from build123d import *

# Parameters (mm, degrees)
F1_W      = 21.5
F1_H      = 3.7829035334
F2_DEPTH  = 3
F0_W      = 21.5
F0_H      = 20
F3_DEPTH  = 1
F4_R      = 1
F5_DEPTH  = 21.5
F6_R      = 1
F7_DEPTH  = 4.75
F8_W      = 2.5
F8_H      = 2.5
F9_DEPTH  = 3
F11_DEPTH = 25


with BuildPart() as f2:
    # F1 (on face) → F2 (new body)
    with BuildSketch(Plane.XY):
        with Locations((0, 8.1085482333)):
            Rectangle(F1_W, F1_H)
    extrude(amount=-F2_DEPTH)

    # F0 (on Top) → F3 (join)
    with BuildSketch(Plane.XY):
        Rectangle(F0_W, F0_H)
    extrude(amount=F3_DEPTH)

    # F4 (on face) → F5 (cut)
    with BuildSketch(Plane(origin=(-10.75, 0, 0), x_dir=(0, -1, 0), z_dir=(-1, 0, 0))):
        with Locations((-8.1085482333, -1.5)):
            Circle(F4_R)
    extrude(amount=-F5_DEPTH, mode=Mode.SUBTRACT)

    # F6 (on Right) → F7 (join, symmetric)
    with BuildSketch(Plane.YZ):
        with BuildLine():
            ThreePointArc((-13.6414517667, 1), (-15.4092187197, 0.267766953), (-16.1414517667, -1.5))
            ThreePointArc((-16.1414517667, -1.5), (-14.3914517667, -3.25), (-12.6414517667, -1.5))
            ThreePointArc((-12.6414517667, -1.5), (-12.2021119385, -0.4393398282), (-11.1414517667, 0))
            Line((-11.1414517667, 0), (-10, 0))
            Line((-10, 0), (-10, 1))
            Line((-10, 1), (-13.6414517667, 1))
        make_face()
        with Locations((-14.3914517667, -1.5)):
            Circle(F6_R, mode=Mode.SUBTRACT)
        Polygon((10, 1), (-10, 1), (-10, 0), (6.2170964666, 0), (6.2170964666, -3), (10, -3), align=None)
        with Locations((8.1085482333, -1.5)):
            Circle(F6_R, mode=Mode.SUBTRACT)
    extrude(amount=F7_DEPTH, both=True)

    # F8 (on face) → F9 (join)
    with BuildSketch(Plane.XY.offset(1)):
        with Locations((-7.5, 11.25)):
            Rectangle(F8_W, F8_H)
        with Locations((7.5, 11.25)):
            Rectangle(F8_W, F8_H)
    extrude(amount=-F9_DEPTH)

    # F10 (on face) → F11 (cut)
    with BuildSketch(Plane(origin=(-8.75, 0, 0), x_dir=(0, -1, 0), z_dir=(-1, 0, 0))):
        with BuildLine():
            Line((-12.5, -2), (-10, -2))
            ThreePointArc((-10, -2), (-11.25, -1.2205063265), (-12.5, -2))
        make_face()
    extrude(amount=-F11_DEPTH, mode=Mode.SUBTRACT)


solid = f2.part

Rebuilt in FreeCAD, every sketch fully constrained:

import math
import FreeCAD as App
import Part
import Sketcher
from FreeCAD import Vector


def add_polygon(sketch, points):
    """Adds a closed chain of lines whose ends are joined by coincident constraints."""
    first, n = sketch.GeometryCount, len(points)
    for a, b in zip(points, points[1:] + points[:1]):
        sketch.addGeometry(Part.LineSegment(App.Vector(*a, 0), App.Vector(*b, 0)), False)
    for i in range(n):
        sketch.addConstraint(Sketcher.Constraint("Coincident", first + i, 2, first + (i + 1) % n, 1))

doc = App.newDocument("Part")
body = doc.addObject("PartDesign::Body", "Body")

# Sketch on XY plane
sketch1 = doc.addObject("Sketcher::SketchObject", "Sketch")
body.addObject(sketch1)
sketch1.AttachmentSupport = (doc.XY_Plane, [""])
sketch1.MapMode = "FlatFace"
add_polygon(sketch1, [(-10.8, 10), (-10.8, 6.2), (10.8, 6.2), (10.8, 10)])  # lines 0-3
sketch1.addConstraint([
    Sketcher.Constraint("Vertical", 0),
    Sketcher.Constraint("Horizontal", 1),
    Sketcher.Constraint("Vertical", 2),
    Sketcher.Constraint("Horizontal", 3),
    Sketcher.Constraint("DistanceX", 1, 1, 1, 2, 21.5),
    Sketcher.Constraint("DistanceY", -1, 1, 2, 2, 10.0),
    Sketcher.Constraint("DistanceX", 0, 2, -1, 1, 10.75),
    Sketcher.Constraint("DistanceY", 0, 2, 0, 1, 3.782904),
])
pad1 = doc.addObject("PartDesign::Pad", "Pad")
body.addObject(pad1)
pad1.Profile = sketch1
pad1.Length = 3
pad1.Reversed = True

# Sketch on XY plane
sketch2 = doc.addObject("Sketcher::SketchObject", "Sketch001")
body.addObject(sketch2)
sketch2.AttachmentSupport = (doc.XY_Plane, [""])
sketch2.MapMode = "FlatFace"
add_polygon(sketch2, [(-11, 10), (-11, -10), (11, -10), (11, 10)])  # lines 0-3
sketch2.addConstraint([
    Sketcher.Constraint("Vertical", 0),
    Sketcher.Constraint("Horizontal", 1),
    Sketcher.Constraint("Vertical", 2),
    Sketcher.Constraint("Horizontal", 3),
    Sketcher.Constraint("Symmetric", 0, 2, 2, 2, -1, 1),
    Sketcher.Constraint("DistanceY", 0, 2, 0, 1, 20.0),
    Sketcher.Constraint("DistanceX", 1, 1, 1, 2, 21.5),
])
pad2 = doc.addObject("PartDesign::Pad", "Pad001")
body.addObject(pad2)
pad2.Profile = sketch2
pad2.Length = 1

# Sketch on YZ plane
sketch3 = doc.addObject("Sketcher::SketchObject", "Sketch002")
body.addObject(sketch3)
sketch3.AttachmentSupport = (doc.YZ_Plane, [""])
sketch3.MapMode = "FlatFace"
sketch3.AttachmentOffset = App.Placement(Vector(0, 0, -10.75), App.Rotation())
sketch3.addGeometry(Part.Circle(Vector(8.1, -1.5, 0), Vector(0, 0, 1), 1), False)
sketch3.addConstraint([
    Sketcher.Constraint("Diameter", 0, 2.0),
    Sketcher.Constraint("DistanceY", 0, 3, -1, 1, 1.5),
    Sketcher.Constraint("DistanceX", -1, 1, 0, 3, 8.108548),
])
pocket1 = doc.addObject("PartDesign::Pocket", "Pocket")
body.addObject(pocket1)
pocket1.Profile = sketch3
pocket1.Length = 21.5
pocket1.Reversed = True

# Sketch on YZ plane
sketch4 = doc.addObject("Sketcher::SketchObject", "Sketch003")
body.addObject(sketch4)
sketch4.AttachmentSupport = (doc.YZ_Plane, [""])
sketch4.MapMode = "FlatFace"
sketch4.addGeometry([
    Part.ArcOfCircle(Part.Circle(Vector(-13.6, -1.5, 0), Vector(0, 0, 1), 2.5), math.radians(90), math.radians(180)),  # 0
    Part.ArcOfCircle(Part.Circle(Vector(-14.4, -1.5, 0), Vector(0, 0, 1), 1.8), math.radians(180), math.radians(360)),  # 1
    Part.ArcOfCircle(Part.Circle(Vector(-11.1, -1.5, 0), Vector(0, 0, 1), 1.5), math.radians(90), math.radians(180)),  # 2
    Part.LineSegment(Vector(-11.1, 0, 0), Vector(6.2, 0, 0)),  # 3
    Part.LineSegment(Vector(6.2, 0, 0), Vector(6.2, -3, 0)),  # 4
    Part.LineSegment(Vector(6.2, -3, 0), Vector(10, -3, 0)),  # 5
    Part.LineSegment(Vector(10, -3, 0), Vector(10, 1, 0)),  # 6
    Part.LineSegment(Vector(10, 1, 0), Vector(-13.6, 1, 0)),  # 7
    Part.Circle(Vector(-14.4, -1.5, 0), Vector(0, 0, 1), 1),  # 8
    Part.Circle(Vector(8.1, -1.5, 0), Vector(0, 0, 1), 1),  # 9
], False)
sketch4.addConstraint([
    Sketcher.Constraint("Tangent", 0, 2, 1, 1),
    Sketcher.Constraint("Tangent", 1, 2, 2, 2),
    Sketcher.Constraint("Tangent", 2, 1, 3, 1),
    Sketcher.Constraint("Coincident", 3, 2, 4, 1),
    Sketcher.Constraint("Coincident", 4, 2, 5, 1),
    Sketcher.Constraint("Coincident", 5, 2, 6, 1),
    Sketcher.Constraint("Coincident", 6, 2, 7, 1),
    Sketcher.Constraint("Tangent", 7, 2, 0, 1),
    Sketcher.Constraint("Horizontal", 3),
    Sketcher.Constraint("Vertical", 4),
    Sketcher.Constraint("Horizontal", 5),
    Sketcher.Constraint("Vertical", 6),
    Sketcher.Constraint("Horizontal", 7),
    Sketcher.Constraint("Coincident", 8, 3, 1, 3),
    Sketcher.Constraint("Equal", 8, 9),
    Sketcher.Constraint("PointOnObject", 2, 1, -1),
    Sketcher.Constraint("Horizontal", 0, 3, 1, 3),
    Sketcher.Constraint("Horizontal", 1, 3, 2, 3),
    Sketcher.Constraint("Horizontal", 8, 3, 9, 3),
    Sketcher.Constraint("Diameter", 8, 2.0),
    Sketcher.Constraint("Radius", 0, 2.5),
    Sketcher.Constraint("Radius", 2, 1.5),
    Sketcher.Constraint("DistanceY", 4, 2, 4, 1, 3.0),
    Sketcher.Constraint("Radius", 1, 1.75),
    Sketcher.Constraint("DistanceX", -1, 1, 5, 2, 10.0),
    Sketcher.Constraint("DistanceX", 1, 3, 9, 3, 22.5),
    Sketcher.Constraint("DistanceX", 3, 1, 3, 2, 17.358548),
    Sketcher.Constraint("DistanceX", 7, 2, 7, 1, 23.641452),
])
pad3 = doc.addObject("PartDesign::Pad", "Pad002")
body.addObject(pad3)
pad3.Profile = sketch4
pad3.Length = 9.5
pad3.Midplane = True

# Sketch on XY plane
sketch5 = doc.addObject("Sketcher::SketchObject", "Sketch004")
body.addObject(sketch5)
sketch5.AttachmentSupport = (doc.XY_Plane, [""])
sketch5.MapMode = "FlatFace"
sketch5.AttachmentOffset = App.Placement(Vector(0, 0, 1), App.Rotation())
add_polygon(sketch5, [(-8.8, 12.5), (-8.8, 10), (-6.2, 10), (-6.2, 12.5)])  # lines 0-3
add_polygon(sketch5, [(6.2, 12.5), (6.2, 10), (8.8, 10), (8.8, 12.5)])  # lines 4-7
sketch5.addConstraint([
    Sketcher.Constraint("Vertical", 0),
    Sketcher.Constraint("Horizontal", 1),
    Sketcher.Constraint("Vertical", 2),
    Sketcher.Constraint("Horizontal", 3),
    Sketcher.Constraint("Vertical", 4),
    Sketcher.Constraint("Horizontal", 5),
    Sketcher.Constraint("Vertical", 6),
    Sketcher.Constraint("Horizontal", 7),
    Sketcher.Constraint("Symmetric", 1, 2, 4, 2, -2),
    Sketcher.Constraint("Symmetric", 3, 2, 6, 2, -2),
    Sketcher.Constraint("Equal", 7, 0),
    Sketcher.Constraint("DistanceX", 1, 1, 1, 2, 2.5),
    Sketcher.Constraint("DistanceY", -1, 1, 0, 2, 10.0),
    Sketcher.Constraint("DistanceX", 0, 2, 4, 2, 15.0),
])
pad4 = doc.addObject("PartDesign::Pad", "Pad003")
body.addObject(pad4)
pad4.Profile = sketch5
pad4.Length = 3
pad4.Reversed = True

# Sketch on YZ plane
sketch6 = doc.addObject("Sketcher::SketchObject", "Sketch005")
body.addObject(sketch6)
sketch6.AttachmentSupport = (doc.YZ_Plane, [""])
sketch6.MapMode = "FlatFace"
sketch6.AttachmentOffset = App.Placement(Vector(0, 0, -8.75), App.Rotation())
sketch6.addGeometry([
    Part.LineSegment(Vector(12.5, -2, 0), Vector(10, -2, 0)),
    Part.ArcOfCircle(Part.Circle(Vector(11.2, -2.6, 0), Vector(0, 0, 1), 1.4), math.radians(26), math.radians(154)),
], False)
sketch6.addConstraint([
    Sketcher.Constraint("Coincident", 0, 1, 1, 1),
    Sketcher.Constraint("Coincident", 1, 2, 0, 2),
    Sketcher.Constraint("Horizontal", 0),
    Sketcher.Constraint("DistanceX", 0, 2, 0, 1, 2.5),
    Sketcher.Constraint("DistanceY", 0, 1, -1, 1, 2.0),
    Sketcher.Constraint("DistanceX", -1, 1, 1, 2, 10.0),
    Sketcher.Constraint("Radius", 1, 1.392),
])
pocket2 = doc.addObject("PartDesign::Pocket", "Pocket001")
body.addObject(pocket2)
pocket2.Profile = sketch6
pocket2.Length = 25
pocket2.Reversed = True

doc.recompute()
